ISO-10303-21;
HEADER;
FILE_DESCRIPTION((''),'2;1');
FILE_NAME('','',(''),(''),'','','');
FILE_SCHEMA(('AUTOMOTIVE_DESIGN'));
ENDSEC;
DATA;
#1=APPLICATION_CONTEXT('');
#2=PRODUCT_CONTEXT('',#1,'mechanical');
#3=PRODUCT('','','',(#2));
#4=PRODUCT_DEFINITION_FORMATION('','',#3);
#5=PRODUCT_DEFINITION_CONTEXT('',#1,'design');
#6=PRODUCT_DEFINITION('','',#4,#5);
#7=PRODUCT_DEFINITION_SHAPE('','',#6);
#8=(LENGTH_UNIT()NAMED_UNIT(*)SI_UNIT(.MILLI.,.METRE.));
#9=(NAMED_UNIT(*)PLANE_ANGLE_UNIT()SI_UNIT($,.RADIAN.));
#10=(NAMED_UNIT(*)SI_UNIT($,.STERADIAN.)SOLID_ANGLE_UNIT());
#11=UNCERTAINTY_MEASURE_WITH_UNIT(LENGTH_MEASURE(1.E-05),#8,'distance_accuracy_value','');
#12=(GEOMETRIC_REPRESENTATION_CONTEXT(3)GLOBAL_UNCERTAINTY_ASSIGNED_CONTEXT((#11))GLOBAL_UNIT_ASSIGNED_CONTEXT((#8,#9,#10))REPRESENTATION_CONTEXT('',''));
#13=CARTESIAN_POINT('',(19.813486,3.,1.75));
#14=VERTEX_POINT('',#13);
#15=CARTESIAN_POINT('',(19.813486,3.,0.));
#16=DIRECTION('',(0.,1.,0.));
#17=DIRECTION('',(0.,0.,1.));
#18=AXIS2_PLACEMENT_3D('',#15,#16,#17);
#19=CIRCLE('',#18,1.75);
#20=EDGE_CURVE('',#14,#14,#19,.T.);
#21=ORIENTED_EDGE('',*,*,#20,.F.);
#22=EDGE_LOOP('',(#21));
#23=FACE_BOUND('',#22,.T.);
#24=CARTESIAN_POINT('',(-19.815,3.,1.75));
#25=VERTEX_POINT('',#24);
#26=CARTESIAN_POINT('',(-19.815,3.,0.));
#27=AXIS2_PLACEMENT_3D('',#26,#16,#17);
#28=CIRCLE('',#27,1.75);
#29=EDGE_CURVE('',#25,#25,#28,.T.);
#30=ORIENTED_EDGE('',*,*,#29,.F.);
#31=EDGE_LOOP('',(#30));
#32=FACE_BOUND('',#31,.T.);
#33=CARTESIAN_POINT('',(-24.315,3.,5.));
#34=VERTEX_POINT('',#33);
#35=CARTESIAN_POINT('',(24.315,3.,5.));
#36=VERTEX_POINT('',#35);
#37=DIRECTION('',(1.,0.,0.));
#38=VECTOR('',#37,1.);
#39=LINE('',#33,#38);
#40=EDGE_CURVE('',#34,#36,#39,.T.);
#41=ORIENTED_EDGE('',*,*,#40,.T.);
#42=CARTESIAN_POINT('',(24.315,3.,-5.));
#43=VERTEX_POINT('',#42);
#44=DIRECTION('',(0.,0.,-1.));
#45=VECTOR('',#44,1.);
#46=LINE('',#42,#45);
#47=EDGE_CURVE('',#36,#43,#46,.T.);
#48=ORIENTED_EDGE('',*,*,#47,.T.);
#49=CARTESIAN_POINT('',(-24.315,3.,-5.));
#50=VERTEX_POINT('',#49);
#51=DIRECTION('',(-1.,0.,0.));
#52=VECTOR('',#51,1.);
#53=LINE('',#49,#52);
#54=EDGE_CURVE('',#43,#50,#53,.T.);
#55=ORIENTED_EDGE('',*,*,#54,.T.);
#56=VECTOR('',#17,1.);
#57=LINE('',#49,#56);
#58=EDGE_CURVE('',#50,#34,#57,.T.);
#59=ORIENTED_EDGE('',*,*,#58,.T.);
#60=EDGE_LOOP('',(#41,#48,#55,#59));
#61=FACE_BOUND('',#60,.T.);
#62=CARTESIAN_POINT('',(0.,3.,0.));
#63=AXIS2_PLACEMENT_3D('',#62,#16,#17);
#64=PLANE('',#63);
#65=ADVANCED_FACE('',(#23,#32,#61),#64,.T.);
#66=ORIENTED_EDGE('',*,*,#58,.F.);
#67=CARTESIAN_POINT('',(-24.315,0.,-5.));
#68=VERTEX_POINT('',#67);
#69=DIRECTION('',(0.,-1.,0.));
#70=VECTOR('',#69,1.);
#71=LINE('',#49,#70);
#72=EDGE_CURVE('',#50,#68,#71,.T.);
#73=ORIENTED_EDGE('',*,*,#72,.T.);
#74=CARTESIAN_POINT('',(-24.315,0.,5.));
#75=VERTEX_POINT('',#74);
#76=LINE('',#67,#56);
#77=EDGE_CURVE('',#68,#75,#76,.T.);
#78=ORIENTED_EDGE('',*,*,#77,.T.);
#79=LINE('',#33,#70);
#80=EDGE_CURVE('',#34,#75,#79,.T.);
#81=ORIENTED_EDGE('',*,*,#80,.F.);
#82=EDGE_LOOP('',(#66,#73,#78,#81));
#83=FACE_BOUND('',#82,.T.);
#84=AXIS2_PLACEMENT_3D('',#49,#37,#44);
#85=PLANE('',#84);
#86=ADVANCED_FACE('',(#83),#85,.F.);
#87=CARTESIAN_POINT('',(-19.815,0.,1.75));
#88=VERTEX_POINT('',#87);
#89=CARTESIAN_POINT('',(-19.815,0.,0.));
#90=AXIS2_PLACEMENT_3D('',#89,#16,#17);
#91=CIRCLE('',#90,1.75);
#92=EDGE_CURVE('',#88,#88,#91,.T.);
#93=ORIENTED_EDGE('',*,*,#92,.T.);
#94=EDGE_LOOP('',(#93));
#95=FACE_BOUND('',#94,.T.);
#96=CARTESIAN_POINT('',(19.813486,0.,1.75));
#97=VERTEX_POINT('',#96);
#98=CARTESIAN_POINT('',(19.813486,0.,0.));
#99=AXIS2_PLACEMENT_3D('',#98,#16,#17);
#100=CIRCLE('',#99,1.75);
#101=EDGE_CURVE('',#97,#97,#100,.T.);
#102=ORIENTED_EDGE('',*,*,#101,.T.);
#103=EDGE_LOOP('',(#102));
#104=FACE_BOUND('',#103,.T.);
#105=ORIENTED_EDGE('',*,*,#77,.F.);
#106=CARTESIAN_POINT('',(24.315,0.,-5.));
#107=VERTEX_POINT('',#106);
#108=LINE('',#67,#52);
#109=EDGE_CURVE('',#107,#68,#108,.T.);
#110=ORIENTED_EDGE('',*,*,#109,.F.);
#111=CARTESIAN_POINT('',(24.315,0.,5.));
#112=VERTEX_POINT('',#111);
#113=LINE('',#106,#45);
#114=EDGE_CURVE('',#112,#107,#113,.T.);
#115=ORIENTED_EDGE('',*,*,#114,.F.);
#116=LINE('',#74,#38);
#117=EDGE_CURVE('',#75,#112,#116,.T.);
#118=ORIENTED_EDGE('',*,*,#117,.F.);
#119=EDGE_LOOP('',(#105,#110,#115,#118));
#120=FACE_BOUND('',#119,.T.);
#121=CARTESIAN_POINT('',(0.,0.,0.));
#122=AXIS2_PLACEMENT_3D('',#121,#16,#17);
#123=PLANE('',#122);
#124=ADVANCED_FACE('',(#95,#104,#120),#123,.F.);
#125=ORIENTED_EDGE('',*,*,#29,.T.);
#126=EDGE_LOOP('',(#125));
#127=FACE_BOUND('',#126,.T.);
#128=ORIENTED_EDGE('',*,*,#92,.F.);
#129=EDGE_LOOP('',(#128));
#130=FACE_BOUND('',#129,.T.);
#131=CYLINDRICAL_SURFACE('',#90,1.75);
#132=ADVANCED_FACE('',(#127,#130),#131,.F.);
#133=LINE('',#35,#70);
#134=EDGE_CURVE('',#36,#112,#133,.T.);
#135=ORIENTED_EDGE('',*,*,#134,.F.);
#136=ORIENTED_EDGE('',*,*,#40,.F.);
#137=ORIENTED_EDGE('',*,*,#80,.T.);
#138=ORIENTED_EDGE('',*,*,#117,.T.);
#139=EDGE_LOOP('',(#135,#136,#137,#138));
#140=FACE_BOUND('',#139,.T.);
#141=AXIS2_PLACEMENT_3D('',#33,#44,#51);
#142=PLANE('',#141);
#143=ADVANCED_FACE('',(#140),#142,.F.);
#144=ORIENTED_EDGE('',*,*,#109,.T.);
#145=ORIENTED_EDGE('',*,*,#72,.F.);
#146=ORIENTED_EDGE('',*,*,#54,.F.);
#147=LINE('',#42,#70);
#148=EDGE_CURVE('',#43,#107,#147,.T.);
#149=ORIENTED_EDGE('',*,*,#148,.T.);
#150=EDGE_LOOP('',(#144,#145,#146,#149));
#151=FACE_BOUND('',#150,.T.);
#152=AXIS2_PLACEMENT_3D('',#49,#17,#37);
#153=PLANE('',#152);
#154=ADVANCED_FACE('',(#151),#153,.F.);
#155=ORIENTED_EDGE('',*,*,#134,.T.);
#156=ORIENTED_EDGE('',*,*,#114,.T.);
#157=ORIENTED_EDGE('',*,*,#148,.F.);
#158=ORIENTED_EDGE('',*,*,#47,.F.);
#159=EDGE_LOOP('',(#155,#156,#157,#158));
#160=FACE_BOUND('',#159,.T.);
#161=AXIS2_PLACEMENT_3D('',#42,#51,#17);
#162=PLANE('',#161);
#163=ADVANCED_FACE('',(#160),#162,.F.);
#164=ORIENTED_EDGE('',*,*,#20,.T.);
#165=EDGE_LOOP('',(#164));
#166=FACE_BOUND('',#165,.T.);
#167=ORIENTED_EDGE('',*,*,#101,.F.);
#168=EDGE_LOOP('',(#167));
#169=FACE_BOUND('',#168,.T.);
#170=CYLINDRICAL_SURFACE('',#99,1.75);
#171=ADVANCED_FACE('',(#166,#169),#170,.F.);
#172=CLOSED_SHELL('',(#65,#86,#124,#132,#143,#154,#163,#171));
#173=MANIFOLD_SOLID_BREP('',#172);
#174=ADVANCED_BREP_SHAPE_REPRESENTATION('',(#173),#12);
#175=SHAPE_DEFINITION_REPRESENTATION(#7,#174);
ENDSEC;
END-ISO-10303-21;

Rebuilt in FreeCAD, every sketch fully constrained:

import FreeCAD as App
import Part
import Sketcher


def add_polygon(sketch, points):
    """Adds a closed chain of lines whose ends are joined by coincident constraints."""
    first, n = sketch.GeometryCount, len(points)
    for a, b in zip(points, points[1:] + points[:1]):
        sketch.addGeometry(Part.LineSegment(App.Vector(*a, 0), App.Vector(*b, 0)), False)
    for i in range(n):
        sketch.addConstraint(Sketcher.Constraint("Coincident", first + i, 2, first + (i + 1) % n, 1))

doc = App.newDocument("Part")
body = doc.addObject("PartDesign::Body", "Body")

# Sketch on XZ plane
sketch1 = doc.addObject("Sketcher::SketchObject", "Sketch")
body.addObject(sketch1)
sketch1.AttachmentSupport = (doc.XZ_Plane, [""])
sketch1.MapMode = "FlatFace"
add_polygon(sketch1, [(-24, -5), (-24, 5), (24, 5), (24, -5)])  # lines 0-3
sketch1.addConstraint([
    Sketcher.Constraint("Vertical", 0),
    Sketcher.Constraint("Horizontal", 1),
    Sketcher.Constraint("Vertical", 2),
    Sketcher.Constraint("Horizontal", 3),
    Sketcher.Constraint("Symmetric", 0, 2, 2, 2, -1, 1),
    Sketcher.Constraint("DistanceY", 0, 1, 0, 2, 10.0),
    Sketcher.Constraint("DistanceX", 1, 1, 1, 2, 48.63),
])
pad1 = doc.addObject("PartDesign::Pad", "Pad")
body.addObject(pad1)
pad1.Profile = sketch1
pad1.Length = 3
pad1.Reversed = True

# Sketch on XZ plane
sketch2 = doc.addObject("Sketcher::SketchObject", "Sketch001")
body.addObject(sketch2)
sketch2.AttachmentSupport = (doc.XZ_Plane, [""])
sketch2.MapMode = "FlatFace"
sketch2.AttachmentOffset = App.Placement(App.Vector(0, 0, -3), App.Rotation())
sketch2.addGeometry([
    Part.Circle(App.Vector(-19.8, 0, 0), App.Vector(0, 0, 1), 1.8),
    Part.Circle(App.Vector(19.8, 0, 0), App.Vector(0, 0, 1), 1.8),
], False)
sketch2.addConstraint([
    Sketcher.Constraint("Equal", 0, 1),
    Sketcher.Constraint("PointOnObject", 0, 3, -1),
    Sketcher.Constraint("PointOnObject", 1, 3, -1),
    Sketcher.Constraint("Diameter", 0, 3.5),
    Sketcher.Constraint("DistanceX", 0, 3, -1, 1, 19.815),
    Sketcher.Constraint("DistanceX", -1, 1, 1, 3, 19.813486),
])
pocket1 = doc.addObject("PartDesign::Pocket", "Pocket")
body.addObject(pocket1)
pocket1.Profile = sketch2
pocket1.Type = "ThroughAll"
pocket1.Reversed = True

doc.recompute()
